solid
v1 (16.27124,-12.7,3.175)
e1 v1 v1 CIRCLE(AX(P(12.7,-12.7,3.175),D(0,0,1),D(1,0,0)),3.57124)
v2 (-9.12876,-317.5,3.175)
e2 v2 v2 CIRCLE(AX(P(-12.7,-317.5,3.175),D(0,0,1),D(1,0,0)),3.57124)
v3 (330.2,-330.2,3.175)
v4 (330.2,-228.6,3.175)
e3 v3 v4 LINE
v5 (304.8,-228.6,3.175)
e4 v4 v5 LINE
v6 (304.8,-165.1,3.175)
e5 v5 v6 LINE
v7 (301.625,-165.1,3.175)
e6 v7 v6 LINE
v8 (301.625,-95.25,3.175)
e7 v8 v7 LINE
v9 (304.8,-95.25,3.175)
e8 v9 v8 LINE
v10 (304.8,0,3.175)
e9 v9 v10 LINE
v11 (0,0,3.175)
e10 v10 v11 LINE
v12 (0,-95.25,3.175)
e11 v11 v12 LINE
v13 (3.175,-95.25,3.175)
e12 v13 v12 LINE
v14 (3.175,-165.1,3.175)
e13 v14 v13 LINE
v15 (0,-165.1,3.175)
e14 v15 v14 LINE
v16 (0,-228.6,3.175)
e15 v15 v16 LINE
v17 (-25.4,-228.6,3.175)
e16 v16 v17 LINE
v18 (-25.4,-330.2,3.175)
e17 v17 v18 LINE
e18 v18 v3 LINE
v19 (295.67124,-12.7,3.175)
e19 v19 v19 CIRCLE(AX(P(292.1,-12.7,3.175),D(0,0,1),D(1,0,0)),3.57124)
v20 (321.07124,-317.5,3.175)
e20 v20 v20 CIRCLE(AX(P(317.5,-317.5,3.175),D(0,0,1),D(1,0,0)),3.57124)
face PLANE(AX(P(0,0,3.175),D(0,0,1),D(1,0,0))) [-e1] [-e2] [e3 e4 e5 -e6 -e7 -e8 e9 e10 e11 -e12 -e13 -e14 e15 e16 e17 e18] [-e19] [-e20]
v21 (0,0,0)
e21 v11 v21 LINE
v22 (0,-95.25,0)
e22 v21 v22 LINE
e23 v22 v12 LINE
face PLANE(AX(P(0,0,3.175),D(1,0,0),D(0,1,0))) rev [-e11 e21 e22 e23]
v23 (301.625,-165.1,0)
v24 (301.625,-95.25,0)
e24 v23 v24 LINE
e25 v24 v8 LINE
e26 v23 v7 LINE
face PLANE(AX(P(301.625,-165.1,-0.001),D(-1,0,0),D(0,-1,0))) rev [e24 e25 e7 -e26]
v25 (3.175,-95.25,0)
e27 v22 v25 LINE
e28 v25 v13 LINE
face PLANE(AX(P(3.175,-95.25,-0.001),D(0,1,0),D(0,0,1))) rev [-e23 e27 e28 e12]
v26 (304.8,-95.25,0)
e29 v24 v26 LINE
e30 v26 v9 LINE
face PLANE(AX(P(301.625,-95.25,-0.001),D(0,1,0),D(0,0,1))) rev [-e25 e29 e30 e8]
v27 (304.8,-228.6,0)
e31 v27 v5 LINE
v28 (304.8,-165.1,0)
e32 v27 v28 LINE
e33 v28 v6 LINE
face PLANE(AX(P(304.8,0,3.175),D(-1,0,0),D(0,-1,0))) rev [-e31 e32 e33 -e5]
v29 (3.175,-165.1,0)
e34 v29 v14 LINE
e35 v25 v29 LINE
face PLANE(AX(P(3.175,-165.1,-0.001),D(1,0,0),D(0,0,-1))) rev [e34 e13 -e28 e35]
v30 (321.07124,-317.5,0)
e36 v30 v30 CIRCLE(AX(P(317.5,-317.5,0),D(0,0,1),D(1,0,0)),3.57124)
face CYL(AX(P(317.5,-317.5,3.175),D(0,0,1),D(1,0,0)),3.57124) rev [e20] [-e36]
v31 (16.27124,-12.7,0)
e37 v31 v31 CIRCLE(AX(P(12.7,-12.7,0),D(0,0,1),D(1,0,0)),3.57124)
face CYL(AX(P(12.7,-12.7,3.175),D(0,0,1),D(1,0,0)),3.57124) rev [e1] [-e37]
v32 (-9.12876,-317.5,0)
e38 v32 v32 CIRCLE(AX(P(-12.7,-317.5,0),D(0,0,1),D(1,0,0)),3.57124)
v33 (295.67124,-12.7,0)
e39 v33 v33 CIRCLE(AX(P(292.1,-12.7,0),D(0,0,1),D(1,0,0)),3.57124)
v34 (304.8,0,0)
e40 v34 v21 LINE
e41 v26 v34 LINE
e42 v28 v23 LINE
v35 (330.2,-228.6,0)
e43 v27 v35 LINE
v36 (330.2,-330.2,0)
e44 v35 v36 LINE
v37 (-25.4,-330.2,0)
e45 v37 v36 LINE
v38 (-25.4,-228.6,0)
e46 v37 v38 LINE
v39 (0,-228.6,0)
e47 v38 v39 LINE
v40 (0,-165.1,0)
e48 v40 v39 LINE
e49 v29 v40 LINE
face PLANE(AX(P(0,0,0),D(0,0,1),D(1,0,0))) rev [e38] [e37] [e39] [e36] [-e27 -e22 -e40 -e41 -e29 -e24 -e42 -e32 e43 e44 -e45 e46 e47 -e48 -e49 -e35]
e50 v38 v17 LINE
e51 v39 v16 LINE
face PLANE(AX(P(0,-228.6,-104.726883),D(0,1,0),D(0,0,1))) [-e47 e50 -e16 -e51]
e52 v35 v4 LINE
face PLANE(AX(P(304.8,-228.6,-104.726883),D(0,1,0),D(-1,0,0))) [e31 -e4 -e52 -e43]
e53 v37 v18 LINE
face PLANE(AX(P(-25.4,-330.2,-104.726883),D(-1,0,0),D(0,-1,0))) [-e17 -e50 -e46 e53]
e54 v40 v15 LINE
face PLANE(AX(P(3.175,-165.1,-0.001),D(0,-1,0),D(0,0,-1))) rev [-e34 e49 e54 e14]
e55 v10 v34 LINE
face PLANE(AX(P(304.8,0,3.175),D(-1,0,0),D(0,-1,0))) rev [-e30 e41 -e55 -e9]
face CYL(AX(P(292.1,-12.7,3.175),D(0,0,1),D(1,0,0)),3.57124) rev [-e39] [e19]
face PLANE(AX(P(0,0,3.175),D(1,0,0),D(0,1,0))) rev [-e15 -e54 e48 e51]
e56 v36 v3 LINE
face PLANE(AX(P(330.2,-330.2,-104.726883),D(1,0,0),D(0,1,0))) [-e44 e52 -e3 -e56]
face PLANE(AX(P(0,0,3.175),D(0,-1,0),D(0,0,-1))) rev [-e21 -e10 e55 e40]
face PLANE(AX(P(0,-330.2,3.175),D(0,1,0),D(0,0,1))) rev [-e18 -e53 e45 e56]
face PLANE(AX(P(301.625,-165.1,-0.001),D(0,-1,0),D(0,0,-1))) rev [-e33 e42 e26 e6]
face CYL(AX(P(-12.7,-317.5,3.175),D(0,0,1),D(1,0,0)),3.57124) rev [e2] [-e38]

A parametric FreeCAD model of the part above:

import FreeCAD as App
import Part
import Sketcher
Q = App.Units.Quantity


def add_polygon(sketch, points):
    """Adds a closed chain of lines whose ends are joined by coincident constraints."""
    first, n = sketch.GeometryCount, len(points)
    for a, b in zip(points, points[1:] + points[:1]):
        sketch.addGeometry(Part.LineSegment(App.Vector(*a, 0), App.Vector(*b, 0)), False)
    for i in range(n):
        sketch.addConstraint(Sketcher.Constraint("Coincident", first + i, 2, first + (i + 1) % n, 1))

doc = App.newDocument("Part")
body = doc.addObject("PartDesign::Body", "Body")

# Sketch on XY plane
sketch1 = body.newObject("Sketcher::SketchObject", "Sketch")
sketch1.AttachmentSupport = (doc.getObject("XY_Plane"), [""])
sketch1.MapMode = "FlatFace"
add_polygon(sketch1, [(0, 0), (0, -330.2), (304.8, -330.2), (304.8, 0)])  # lines 0-3
sketch1.addConstraint([
    Sketcher.Constraint("Vertical", 0),
    Sketcher.Constraint("Horizontal", 1),
    Sketcher.Constraint("Vertical", 2),
    Sketcher.Constraint("Horizontal", 3),
    Sketcher.Constraint("Coincident", 3, 2, -1, 1),
    Sketcher.Constraint("DistanceX", 1, 1, 1, 2, Q("12 in")),
    Sketcher.Constraint("DistanceY", 0, 2, 0, 1, Q("13 in")),
])
pad1 = body.newObject("PartDesign::Pad", "Pad")
pad1.Profile = sketch1
pad1.Length = Q("0.125 in")

# Sketch on XY plane
sketch2 = body.newObject("Sketcher::SketchObject", "Sketch001")
sketch2.AttachmentSupport = (doc.getObject("XY_Plane"), [""])
sketch2.MapMode = "FlatFace"
sketch2.AttachmentOffset = App.Placement(App.Vector(0, 0, 0.125 * 25.4), App.Rotation())
sketch2.addGeometry([
    Part.Circle(App.Vector(12.7, -12.7, 0), App.Vector(0, 0, 1), 3.57124),
    Part.Circle(App.Vector(292.1, -12.7, 0), App.Vector(0, 0, 1), 3.57124),
], False)
sketch2.addConstraint([
    Sketcher.Constraint("Equal", 0, 1),
    Sketcher.Constraint("Horizontal", 0, 3, 1, 3),
    Sketcher.Constraint("DistanceX", 0, 3, 1, 3, Q("11 in")),
    Sketcher.Constraint("Diameter", 0, Q("0.2812 in")),
    Sketcher.Constraint("DistanceX", -1, 1, 0, 3, Q("0.5 in")),
    Sketcher.Constraint("DistanceY", 0, 3, -1, 1, Q("0.5 in")),
])
doc.recompute()
hole = body.newObject("PartDesign::Hole", "Hole")
hole.Profile = sketch2
hole.ThreadType = "None"
hole.Diameter = Q("0.2812 in")
hole.DepthType = "ThroughAll"

# Sketch on XY plane
sketch3 = body.newObject("Sketcher::SketchObject", "Sketch002")
sketch3.AttachmentSupport = (doc.getObject("XY_Plane"), [""])
sketch3.MapMode = "FlatFace"
sketch3.AttachmentOffset = App.Placement(App.Vector(0, 0, 0.125 * 25.4), App.Rotation())
add_polygon(sketch3, [(301.625, -95.25), (301.625, -165.1), (304.8, -165.1), (304.8, -95.25)])  # lines 0-3
sketch3.addConstraint([
    Sketcher.Constraint("Vertical", 0),
    Sketcher.Constraint("Horizontal", 1),
    Sketcher.Constraint("Vertical", 2),
    Sketcher.Constraint("Horizontal", 3),
    Sketcher.Constraint("DistanceX", -1, 1, 1, 2, Q("12 in")),
    Sketcher.Constraint("DistanceY", 0, 2, 0, 1, Q("2.75 in")),
    Sketcher.Constraint("DistanceY", 0, 2, -1, 1, Q("6.5 in")),
    Sketcher.Constraint("DistanceX", 1, 1, 1, 2, Q("0.125 in")),
])
pocket1 = body.newObject("PartDesign::Pocket", "Pocket")
pocket1.Profile = sketch3
pocket1.Type = "UpToFirst"

# Sketch on XY plane
sketch4 = body.newObject("Sketcher::SketchObject", "Sketch003")
sketch4.AttachmentSupport = (doc.getObject("XY_Plane"), [""])
sketch4.MapMode = "FlatFace"
sketch4.AttachmentOffset = App.Placement(App.Vector(0, 0, 0.125 * 25.4), App.Rotation())
add_polygon(sketch4, [(0, -95.25), (0, -165.1), (3.175, -165.1), (3.175, -95.25)])  # lines 0-3
sketch4.addConstraint([
    Sketcher.Constraint("Vertical", 0),
    Sketcher.Constraint("Horizontal", 1),
    Sketcher.Constraint("Vertical", 2),
    Sketcher.Constraint("Horizontal", 3),
    Sketcher.Constraint("PointOnObject", 0, 2, -2),
    Sketcher.Constraint("DistanceY", 0, 2, 0, 1, Q("2.75 in")),
    Sketcher.Constraint("DistanceY", 0, 2, -1, 1, Q("6.5 in")),
    Sketcher.Constraint("DistanceX", 1, 1, 1, 2, Q("0.125 in")),
])
pocket2 = body.newObject("PartDesign::Pocket", "Pocket001")
pocket2.Profile = sketch4
pocket2.Type = "UpToFirst"

# Sketch on XY plane
sketch5 = body.newObject("Sketcher::SketchObject", "Sketch004")
sketch5.AttachmentSupport = (doc.getObject("XY_Plane"), [""])
sketch5.MapMode = "FlatFace"
sketch5.AttachmentOffset = App.Placement(App.Vector(0, 0, 0.125 * 25.4), App.Rotation())
add_polygon(sketch5, [(-25.4, -228.6), (-25.4, -330.2), (0, -330.2), (0, -228.6)])  # lines 0-3
add_polygon(sketch5, [(304.8, -228.6), (304.8, -330.2), (330.2, -330.2), (330.2, -228.6)])  # lines 4-7
sketch5.addConstraint([
    Sketcher.Constraint("Vertical", 0),
    Sketcher.Constraint("Horizontal", 1),
    Sketcher.Constraint("Vertical", 2),
    Sketcher.Constraint("Horizontal", 3),
    Sketcher.Constraint("Vertical", 4),
    Sketcher.Constraint("Horizontal", 5),
    Sketcher.Constraint("Vertical", 6),
    Sketcher.Constraint("Horizontal", 7),
    Sketcher.Constraint("PointOnObject", 1, 2, -2),
    Sketcher.Constraint("Horizontal", 1, 2, 4, 2),
    Sketcher.Constraint("Horizontal", 3, 2, 6, 2),
    Sketcher.Constraint("Equal", 3, 5),
    Sketcher.Constraint("DistanceX", 1, 1, 1, 2, Q("1 in")),
    Sketcher.Constraint("DistanceY", 0, 2, 0, 1, Q("4 in")),
    Sketcher.Constraint("DistanceY", 0, 2, -1, 1, Q("13 in")),
    Sketcher.Constraint("DistanceX", -1, 1, 4, 2, Q("12 in")),
])
pad2 = body.newObject("PartDesign::Pad", "Pad001")
pad2.Profile = sketch5
pad2.Length = Q("0.125 in")
pad2.Reversed = True

# Sketch on XY plane
sketch6 = body.newObject("Sketcher::SketchObject", "Sketch005")
sketch6.AttachmentSupport = (doc.getObject("XY_Plane"), [""])
sketch6.MapMode = "FlatFace"
sketch6.AttachmentOffset = App.Placement(App.Vector(0, 0, 0.125 * 25.4), App.Rotation())
sketch6.addGeometry([
    Part.Circle(App.Vector(317.5, -317.5, 0), App.Vector(0, 0, 1), 3.57124),
    Part.Circle(App.Vector(-12.7, -317.5, 0), App.Vector(0, 0, 1), 3.57124),
], False)
sketch6.addConstraint([
    Sketcher.Constraint("Equal", 0, 1),
    Sketcher.Constraint("Horizontal", 0, 3, 1, 3),
    Sketcher.Constraint("DistanceX", 1, 3, 0, 3, Q("13 in")),
    Sketcher.Constraint("Diameter", 0, Q("0.2812 in")),
    Sketcher.Constraint("DistanceX", -1, 1, 0, 3, Q("12.5 in")),
    Sketcher.Constraint("DistanceY", 0, 3, -1, 1, Q("12.5 in")),
])
doc.recompute()
hole2 = body.newObject("PartDesign::Hole", "Hole001")
hole2.Profile = sketch6
hole2.ThreadType = "None"
hole2.Diameter = Q("0.2812 in")
hole2.DepthType = "ThroughAll"

doc.recompute()
